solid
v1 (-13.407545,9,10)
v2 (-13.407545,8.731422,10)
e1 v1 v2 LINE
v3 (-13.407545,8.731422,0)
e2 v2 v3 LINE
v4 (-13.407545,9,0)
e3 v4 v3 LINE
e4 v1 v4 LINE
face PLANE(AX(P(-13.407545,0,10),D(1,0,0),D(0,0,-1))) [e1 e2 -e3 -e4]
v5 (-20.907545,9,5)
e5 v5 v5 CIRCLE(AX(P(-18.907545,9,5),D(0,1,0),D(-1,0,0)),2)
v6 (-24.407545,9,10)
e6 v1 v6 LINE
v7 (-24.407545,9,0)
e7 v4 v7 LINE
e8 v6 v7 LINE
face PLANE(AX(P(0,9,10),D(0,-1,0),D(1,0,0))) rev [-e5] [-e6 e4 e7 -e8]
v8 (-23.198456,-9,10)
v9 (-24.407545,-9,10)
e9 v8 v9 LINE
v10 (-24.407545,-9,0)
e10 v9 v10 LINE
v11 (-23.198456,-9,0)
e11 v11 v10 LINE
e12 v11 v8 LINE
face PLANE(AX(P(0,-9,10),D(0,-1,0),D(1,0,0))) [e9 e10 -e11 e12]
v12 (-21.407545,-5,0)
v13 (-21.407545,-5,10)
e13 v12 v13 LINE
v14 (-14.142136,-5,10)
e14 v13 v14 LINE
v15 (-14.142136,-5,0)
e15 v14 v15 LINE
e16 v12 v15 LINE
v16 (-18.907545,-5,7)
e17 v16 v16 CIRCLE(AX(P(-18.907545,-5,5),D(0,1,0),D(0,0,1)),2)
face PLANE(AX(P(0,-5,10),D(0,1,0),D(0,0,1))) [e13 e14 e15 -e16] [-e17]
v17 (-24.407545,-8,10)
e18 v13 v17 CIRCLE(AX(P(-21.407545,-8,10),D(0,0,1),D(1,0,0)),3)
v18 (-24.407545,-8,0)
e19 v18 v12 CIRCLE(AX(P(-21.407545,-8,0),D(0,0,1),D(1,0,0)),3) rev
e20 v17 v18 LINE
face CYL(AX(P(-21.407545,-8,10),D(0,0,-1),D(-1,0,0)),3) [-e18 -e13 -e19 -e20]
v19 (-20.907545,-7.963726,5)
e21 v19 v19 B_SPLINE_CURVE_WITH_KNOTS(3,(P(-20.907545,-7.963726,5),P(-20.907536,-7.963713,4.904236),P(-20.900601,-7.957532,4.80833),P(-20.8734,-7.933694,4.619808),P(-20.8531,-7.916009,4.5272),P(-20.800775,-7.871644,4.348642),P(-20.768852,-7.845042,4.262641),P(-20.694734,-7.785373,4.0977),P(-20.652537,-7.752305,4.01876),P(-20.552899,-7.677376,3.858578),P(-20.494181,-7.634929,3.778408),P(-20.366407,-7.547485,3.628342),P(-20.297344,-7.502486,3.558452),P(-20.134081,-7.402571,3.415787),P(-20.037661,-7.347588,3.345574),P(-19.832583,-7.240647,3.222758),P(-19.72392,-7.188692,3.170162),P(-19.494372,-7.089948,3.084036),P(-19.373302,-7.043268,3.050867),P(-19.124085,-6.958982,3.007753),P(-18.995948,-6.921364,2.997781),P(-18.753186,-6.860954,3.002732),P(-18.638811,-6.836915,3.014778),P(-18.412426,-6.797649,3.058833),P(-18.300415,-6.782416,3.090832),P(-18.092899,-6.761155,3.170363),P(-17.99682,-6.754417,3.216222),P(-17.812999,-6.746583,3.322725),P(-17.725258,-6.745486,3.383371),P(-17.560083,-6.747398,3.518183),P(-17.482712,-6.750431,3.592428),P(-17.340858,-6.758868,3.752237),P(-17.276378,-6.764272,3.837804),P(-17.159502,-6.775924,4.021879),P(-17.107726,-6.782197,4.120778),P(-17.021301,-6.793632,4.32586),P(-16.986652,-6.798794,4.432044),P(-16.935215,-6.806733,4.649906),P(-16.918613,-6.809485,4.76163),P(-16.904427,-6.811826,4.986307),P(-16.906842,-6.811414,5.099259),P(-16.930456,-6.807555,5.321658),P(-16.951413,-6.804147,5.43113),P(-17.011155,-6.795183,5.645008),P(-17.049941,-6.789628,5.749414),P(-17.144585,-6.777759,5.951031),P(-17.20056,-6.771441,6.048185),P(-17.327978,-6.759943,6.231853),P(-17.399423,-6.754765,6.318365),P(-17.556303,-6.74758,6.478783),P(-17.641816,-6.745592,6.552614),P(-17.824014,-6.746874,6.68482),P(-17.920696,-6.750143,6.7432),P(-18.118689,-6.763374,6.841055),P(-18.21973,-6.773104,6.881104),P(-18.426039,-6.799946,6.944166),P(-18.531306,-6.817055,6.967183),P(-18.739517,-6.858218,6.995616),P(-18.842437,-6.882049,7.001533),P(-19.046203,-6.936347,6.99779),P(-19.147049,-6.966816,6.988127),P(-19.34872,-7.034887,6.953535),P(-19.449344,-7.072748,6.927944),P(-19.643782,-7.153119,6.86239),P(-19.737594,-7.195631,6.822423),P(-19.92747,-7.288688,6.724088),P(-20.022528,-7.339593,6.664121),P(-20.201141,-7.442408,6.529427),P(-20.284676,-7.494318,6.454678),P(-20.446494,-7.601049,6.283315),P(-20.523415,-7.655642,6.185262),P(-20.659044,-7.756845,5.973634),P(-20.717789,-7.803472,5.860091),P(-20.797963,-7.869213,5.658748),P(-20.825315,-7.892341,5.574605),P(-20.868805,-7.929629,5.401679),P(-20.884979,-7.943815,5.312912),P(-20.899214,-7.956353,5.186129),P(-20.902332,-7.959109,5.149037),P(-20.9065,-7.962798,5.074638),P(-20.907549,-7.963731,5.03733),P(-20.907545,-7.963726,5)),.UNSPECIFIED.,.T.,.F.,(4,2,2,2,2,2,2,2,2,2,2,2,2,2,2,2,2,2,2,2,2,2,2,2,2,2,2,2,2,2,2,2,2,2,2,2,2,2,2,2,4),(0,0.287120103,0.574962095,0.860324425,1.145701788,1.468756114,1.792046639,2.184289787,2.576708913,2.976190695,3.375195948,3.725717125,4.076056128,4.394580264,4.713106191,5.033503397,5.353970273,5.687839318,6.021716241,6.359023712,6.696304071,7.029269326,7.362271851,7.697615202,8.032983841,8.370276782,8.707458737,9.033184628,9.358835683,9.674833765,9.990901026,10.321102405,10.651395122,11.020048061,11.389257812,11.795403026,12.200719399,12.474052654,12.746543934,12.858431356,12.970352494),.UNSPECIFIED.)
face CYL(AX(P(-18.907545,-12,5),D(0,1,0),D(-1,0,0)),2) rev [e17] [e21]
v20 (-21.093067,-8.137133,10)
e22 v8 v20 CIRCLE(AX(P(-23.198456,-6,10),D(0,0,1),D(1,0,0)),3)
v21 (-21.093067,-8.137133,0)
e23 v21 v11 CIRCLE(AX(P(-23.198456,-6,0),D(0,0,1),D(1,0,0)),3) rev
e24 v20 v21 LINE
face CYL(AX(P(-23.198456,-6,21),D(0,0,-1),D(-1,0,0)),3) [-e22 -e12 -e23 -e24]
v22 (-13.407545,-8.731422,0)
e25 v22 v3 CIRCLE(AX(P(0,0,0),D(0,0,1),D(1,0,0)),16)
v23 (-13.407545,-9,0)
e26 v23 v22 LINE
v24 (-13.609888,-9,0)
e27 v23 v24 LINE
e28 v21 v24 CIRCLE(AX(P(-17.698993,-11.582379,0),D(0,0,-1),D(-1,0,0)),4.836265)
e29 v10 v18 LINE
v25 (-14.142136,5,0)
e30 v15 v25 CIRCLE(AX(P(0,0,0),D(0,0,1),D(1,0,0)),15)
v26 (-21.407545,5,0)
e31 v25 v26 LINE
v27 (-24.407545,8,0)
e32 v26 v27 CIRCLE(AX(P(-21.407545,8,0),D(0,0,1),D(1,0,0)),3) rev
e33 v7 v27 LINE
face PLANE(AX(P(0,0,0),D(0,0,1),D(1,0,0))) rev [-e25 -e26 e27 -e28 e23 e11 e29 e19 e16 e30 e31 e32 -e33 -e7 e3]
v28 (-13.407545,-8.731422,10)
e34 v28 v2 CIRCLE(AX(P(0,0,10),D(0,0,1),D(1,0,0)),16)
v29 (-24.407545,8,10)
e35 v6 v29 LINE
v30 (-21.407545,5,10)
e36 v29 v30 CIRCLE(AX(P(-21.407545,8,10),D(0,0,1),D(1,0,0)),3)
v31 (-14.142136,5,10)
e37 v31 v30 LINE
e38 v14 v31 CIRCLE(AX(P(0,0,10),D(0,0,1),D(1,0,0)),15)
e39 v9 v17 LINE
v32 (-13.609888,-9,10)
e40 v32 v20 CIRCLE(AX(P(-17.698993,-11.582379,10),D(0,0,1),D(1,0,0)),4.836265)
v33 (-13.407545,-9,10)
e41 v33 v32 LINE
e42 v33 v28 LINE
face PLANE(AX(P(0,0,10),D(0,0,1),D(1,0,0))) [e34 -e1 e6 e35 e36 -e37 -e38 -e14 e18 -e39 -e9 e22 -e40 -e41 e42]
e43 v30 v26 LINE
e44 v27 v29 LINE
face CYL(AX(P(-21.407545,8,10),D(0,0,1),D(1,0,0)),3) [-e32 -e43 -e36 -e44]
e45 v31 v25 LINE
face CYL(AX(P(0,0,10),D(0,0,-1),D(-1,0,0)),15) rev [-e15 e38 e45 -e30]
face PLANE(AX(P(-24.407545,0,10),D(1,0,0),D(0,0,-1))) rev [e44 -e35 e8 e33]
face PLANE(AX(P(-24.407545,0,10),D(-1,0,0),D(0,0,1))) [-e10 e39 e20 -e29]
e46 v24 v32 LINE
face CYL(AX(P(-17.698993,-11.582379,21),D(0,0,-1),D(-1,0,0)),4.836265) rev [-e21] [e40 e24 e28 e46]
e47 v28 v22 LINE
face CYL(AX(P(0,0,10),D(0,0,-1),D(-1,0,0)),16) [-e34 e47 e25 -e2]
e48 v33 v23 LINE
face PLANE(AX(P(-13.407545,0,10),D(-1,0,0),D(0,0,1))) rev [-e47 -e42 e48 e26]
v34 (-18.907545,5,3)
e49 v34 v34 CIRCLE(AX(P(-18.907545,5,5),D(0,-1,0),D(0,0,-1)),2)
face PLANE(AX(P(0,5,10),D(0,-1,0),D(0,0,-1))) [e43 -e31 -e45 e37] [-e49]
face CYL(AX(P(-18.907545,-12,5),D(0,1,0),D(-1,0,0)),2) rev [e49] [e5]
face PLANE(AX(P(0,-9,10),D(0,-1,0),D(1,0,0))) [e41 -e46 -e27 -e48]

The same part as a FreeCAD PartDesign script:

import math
import FreeCAD as App
import Part
import Sketcher
from FreeCAD import Vector
Q = App.Units.Quantity


def edges_at(feature, points):
    """Names of the edges that pass closest to the given points."""
    edges = feature.Shape.Edges
    near = lambda p: min(range(len(edges)), key=lambda i: edges[i].distToShape(Part.Vertex(*p))[0])
    return sorted({f"Edge{near(p) + 1}" for p in points})

doc = App.newDocument("Part")
body = doc.addObject("PartDesign::Body", "Body")

# Sketch on XY plane
sketch1 = body.newObject("Sketcher::SketchObject", "Sketch")
sketch1.AttachmentSupport = (doc.getObject("XY_Plane"), [""])
sketch1.MapMode = "FlatFace"
sketch1.addGeometry([
    Part.LineSegment(Vector(-13.41, 8.73, 0), Vector(-13.41, 9, 0)),  # 0
    Part.LineSegment(Vector(-13.41, 9, 0), Vector(-24.41, 9, 0)),  # 1
    Part.LineSegment(Vector(-24.41, 9, 0), Vector(-24.41, 5, 0)),  # 2
    Part.LineSegment(Vector(-24.41, 5, 0), Vector(-14.14, 5, 0)),  # 3
    Part.ArcOfCircle(Part.Circle(Vector(0, 0, 0), Vector(0, 0, 1), 15), math.radians(0), math.radians(161)),  # 4
    Part.ArcOfCircle(Part.Circle(Vector(0, 0, 0), Vector(0, 0, 1), 15), math.radians(-161), math.radians(0)),  # 5
    Part.LineSegment(Vector(-14.14, -5, 0), Vector(-24.41, -5, 0)),  # 6
    Part.LineSegment(Vector(-24.41, -5, 0), Vector(-24.41, -9, 0)),  # 7
    Part.LineSegment(Vector(-24.41, -9, 0), Vector(-13.41, -9, 0)),  # 8
    Part.LineSegment(Vector(-13.41, -9, 0), Vector(-13.41, -8.73, 0)),  # 9
    Part.ArcOfCircle(Part.Circle(Vector(0, 0, 0), Vector(0, 0, 1), 16), math.radians(-147), math.radians(0)),  # 10
    Part.ArcOfCircle(Part.Circle(Vector(0, 0, 0), Vector(0, 0, 1), 16), math.radians(0), math.radians(147)),  # 11
], False)
sketch1.addConstraint([
    Sketcher.Constraint("Coincident", 0, 2, 1, 1),
    Sketcher.Constraint("Coincident", 1, 2, 2, 1),
    Sketcher.Constraint("Coincident", 2, 2, 3, 1),
    Sketcher.Constraint("Coincident", 3, 2, 4, 2),
    Sketcher.Constraint("Tangent", 4, 1, 5, 2),
    Sketcher.Constraint("Coincident", 5, 1, 6, 1),
    Sketcher.Constraint("Coincident", 6, 2, 7, 1),
    Sketcher.Constraint("Coincident", 7, 2, 8, 1),
    Sketcher.Constraint("Coincident", 8, 2, 9, 1),
    Sketcher.Constraint("Coincident", 9, 2, 10, 1),
    Sketcher.Constraint("Tangent", 10, 2, 11, 1),
    Sketcher.Constraint("Coincident", 11, 2, 0, 1),
    Sketcher.Constraint("Vertical", 0),
    Sketcher.Constraint("Horizontal", 1),
    Sketcher.Constraint("Vertical", 2),
    Sketcher.Constraint("Horizontal", 3),
    Sketcher.Constraint("Horizontal", 6),
    Sketcher.Constraint("Vertical", 7),
    Sketcher.Constraint("Horizontal", 8),
    Sketcher.Constraint("Vertical", 9),
    Sketcher.Constraint("Coincident", 4, 3, -1, 1),
    Sketcher.Constraint("Coincident", 10, 3, -1, 1),
    Sketcher.Constraint("Equal", 4, 5),
    Sketcher.Constraint("Equal", 10, 11),
    Sketcher.Constraint("Symmetric", 2, 2, 6, 2, -1),
    Sketcher.Constraint("Symmetric", 0, 2, 8, 2, -1),
    Sketcher.Constraint("PointOnObject", 4, 1, -1),
    Sketcher.Constraint("PointOnObject", 10, 2, -1),
    Sketcher.Constraint("Radius", 4, Q("15 mm")),
    Sketcher.Constraint("Radius", 10, Q("16 mm")),
    Sketcher.Constraint("DistanceX", 1, 2, 1, 1, Q("11 mm")),
    Sketcher.Constraint("DistanceY", 2, 2, 2, 1, Q("4 mm")),
    Sketcher.Constraint("DistanceY", -1, 1, 0, 2, Q("9 mm")),
    Sketcher.Constraint("DistanceX", 3, 1, 3, 2, Q("10.26541 mm")),
])
pad1 = body.newObject("PartDesign::Pad", "Pad")
pad1.Profile = sketch1
pad1.Length = 10
doc.recompute()

fillet = body.newObject("PartDesign::Fillet", "Fillet")
fillet.Base = (pad1, edges_at(pad1, [(-24.408, 5, 5), (-24.408, -5, 5)]))
fillet.Radius = 3

# Sketch on XZ plane
sketch2 = body.newObject("Sketcher::SketchObject", "Sketch001")
sketch2.AttachmentSupport = (doc.getObject("XZ_Plane"), [""])
sketch2.MapMode = "FlatFace"
sketch2.AttachmentOffset = App.Placement(Vector(0, 0, -9), App.Rotation())
sketch2.addGeometry(Part.Circle(Vector(-18.9, 5, 0), Vector(0, 0, 1), 2), False)
sketch2.addConstraint([
    Sketcher.Constraint("Diameter", 0, Q("4 mm")),
    Sketcher.Constraint("DistanceY", -1, 1, 0, 3, Q("5 mm")),
    Sketcher.Constraint("DistanceX", 0, 3, -1, 1, Q("18.907545 mm")),
])
pocket1 = body.newObject("PartDesign::Pocket", "Pocket")
pocket1.Profile = sketch2
pocket1.Length = 21
pocket1.Reversed = True

# Sketch on XY plane
sketch3 = body.newObject("Sketcher::SketchObject", "Sketch002")
sketch3.AttachmentSupport = (doc.getObject("XY_Plane"), [""])
sketch3.MapMode = "FlatFace"
sketch3.addGeometry(Part.Circle(Vector(-17.7, -11.6, 0), Vector(0, 0, 1), 4.8), False)
sketch3.addConstraint([
    Sketcher.Constraint("Diameter", 0, Q("9.67253 mm")),
    Sketcher.Constraint("DistanceY", 0, 3, -1, 1, Q("11.582379 mm")),
    Sketcher.Constraint("DistanceX", 0, 3, -1, 1, Q("17.698993 mm")),
])
pocket2 = body.newObject("PartDesign::Pocket", "Pocket001")
pocket2.Profile = sketch3
pocket2.Length = 21
pocket2.Reversed = True
doc.recompute()

fillet2 = body.newObject("PartDesign::Fillet", "Fillet001")
fillet2.Base = (pocket2, edges_at(pocket2, [(-21.788, -9, 5)]))
fillet2.Radius = 3

doc.recompute()
